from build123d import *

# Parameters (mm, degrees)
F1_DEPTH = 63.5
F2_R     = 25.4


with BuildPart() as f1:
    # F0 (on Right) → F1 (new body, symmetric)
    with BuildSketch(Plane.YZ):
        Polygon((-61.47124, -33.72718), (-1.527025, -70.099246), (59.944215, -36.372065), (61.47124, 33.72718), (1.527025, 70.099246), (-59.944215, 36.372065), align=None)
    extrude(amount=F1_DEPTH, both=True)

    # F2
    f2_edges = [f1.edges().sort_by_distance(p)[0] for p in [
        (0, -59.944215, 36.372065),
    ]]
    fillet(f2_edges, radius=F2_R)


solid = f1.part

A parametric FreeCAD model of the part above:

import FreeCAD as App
import Part
import Sketcher

V = App.Vector
Q = App.Units.Quantity


def edges_at(feature, points):
    """Names of the edges that pass closest to the given points."""
    edges = feature.Shape.Edges
    near = lambda p: min(range(len(edges)), key=lambda i: edges[i].distToShape(Part.Vertex(*p))[0])
    return sorted({f"Edge{near(p) + 1}" for p in points})


def add_polygon(sketch, points):
    """Adds a closed chain of lines whose ends are joined by coincident constraints."""
    first, n = sketch.GeometryCount, len(points)
    for a, b in zip(points, points[1:] + points[:1]):
        sketch.addGeometry(Part.LineSegment(App.Vector(*a, 0), App.Vector(*b, 0)), False)
    for i in range(n):
        sketch.addConstraint(Sketcher.Constraint("Coincident", first + i, 2, first + (i + 1) % n, 1))

doc = App.newDocument("Part")
body = doc.addObject("PartDesign::Body", "Body")

sketch1 = body.newObject("Sketcher::SketchObject", "Sketch")
sketch1.AttachmentSupport = (doc.getObject("YZ_Plane"), [""])
sketch1.MapMode = "FlatFace"
add_polygon(sketch1, [(-61, -34), (-2, -70), (60, -36), (61, 34), (2, 70), (-60, 36)])
sketch1.addConstraint([
    Sketcher.Constraint("Symmetric", 0, 2, 3, 2, -1, 1),
    Sketcher.Constraint("Symmetric", 1, 2, 4, 2, -1, 1),
    Sketcher.Constraint("Symmetric", 2, 2, 5, 2, -1, 1),
    Sketcher.Constraint("Equal", 0, 1),
    Sketcher.Constraint("Equal", 1, 2),
    Sketcher.Constraint("DistanceX", -1, 1, 2, 2, 61.47124),
    Sketcher.Constraint("DistanceY", -1, 1, 2, 2, 33.72718),
    Sketcher.Constraint("DistanceX", 0, 2, 1, 2, 61.47124),
    Sketcher.Constraint("DistanceY", 0, 2, 1, 2, 33.727181),
])
pad1 = body.newObject("PartDesign::Pad", "Pad")
pad1.Profile = sketch1
pad1.Length = Q("5 in")
pad1.Midplane = True
doc.recompute()

fillet = body.newObject("PartDesign::Fillet", "Fillet")
fillet.Base = (pad1, edges_at(pad1, [(0, -59.944, 36.372)]))
fillet.Radius = Q("1 in")

doc.recompute()
